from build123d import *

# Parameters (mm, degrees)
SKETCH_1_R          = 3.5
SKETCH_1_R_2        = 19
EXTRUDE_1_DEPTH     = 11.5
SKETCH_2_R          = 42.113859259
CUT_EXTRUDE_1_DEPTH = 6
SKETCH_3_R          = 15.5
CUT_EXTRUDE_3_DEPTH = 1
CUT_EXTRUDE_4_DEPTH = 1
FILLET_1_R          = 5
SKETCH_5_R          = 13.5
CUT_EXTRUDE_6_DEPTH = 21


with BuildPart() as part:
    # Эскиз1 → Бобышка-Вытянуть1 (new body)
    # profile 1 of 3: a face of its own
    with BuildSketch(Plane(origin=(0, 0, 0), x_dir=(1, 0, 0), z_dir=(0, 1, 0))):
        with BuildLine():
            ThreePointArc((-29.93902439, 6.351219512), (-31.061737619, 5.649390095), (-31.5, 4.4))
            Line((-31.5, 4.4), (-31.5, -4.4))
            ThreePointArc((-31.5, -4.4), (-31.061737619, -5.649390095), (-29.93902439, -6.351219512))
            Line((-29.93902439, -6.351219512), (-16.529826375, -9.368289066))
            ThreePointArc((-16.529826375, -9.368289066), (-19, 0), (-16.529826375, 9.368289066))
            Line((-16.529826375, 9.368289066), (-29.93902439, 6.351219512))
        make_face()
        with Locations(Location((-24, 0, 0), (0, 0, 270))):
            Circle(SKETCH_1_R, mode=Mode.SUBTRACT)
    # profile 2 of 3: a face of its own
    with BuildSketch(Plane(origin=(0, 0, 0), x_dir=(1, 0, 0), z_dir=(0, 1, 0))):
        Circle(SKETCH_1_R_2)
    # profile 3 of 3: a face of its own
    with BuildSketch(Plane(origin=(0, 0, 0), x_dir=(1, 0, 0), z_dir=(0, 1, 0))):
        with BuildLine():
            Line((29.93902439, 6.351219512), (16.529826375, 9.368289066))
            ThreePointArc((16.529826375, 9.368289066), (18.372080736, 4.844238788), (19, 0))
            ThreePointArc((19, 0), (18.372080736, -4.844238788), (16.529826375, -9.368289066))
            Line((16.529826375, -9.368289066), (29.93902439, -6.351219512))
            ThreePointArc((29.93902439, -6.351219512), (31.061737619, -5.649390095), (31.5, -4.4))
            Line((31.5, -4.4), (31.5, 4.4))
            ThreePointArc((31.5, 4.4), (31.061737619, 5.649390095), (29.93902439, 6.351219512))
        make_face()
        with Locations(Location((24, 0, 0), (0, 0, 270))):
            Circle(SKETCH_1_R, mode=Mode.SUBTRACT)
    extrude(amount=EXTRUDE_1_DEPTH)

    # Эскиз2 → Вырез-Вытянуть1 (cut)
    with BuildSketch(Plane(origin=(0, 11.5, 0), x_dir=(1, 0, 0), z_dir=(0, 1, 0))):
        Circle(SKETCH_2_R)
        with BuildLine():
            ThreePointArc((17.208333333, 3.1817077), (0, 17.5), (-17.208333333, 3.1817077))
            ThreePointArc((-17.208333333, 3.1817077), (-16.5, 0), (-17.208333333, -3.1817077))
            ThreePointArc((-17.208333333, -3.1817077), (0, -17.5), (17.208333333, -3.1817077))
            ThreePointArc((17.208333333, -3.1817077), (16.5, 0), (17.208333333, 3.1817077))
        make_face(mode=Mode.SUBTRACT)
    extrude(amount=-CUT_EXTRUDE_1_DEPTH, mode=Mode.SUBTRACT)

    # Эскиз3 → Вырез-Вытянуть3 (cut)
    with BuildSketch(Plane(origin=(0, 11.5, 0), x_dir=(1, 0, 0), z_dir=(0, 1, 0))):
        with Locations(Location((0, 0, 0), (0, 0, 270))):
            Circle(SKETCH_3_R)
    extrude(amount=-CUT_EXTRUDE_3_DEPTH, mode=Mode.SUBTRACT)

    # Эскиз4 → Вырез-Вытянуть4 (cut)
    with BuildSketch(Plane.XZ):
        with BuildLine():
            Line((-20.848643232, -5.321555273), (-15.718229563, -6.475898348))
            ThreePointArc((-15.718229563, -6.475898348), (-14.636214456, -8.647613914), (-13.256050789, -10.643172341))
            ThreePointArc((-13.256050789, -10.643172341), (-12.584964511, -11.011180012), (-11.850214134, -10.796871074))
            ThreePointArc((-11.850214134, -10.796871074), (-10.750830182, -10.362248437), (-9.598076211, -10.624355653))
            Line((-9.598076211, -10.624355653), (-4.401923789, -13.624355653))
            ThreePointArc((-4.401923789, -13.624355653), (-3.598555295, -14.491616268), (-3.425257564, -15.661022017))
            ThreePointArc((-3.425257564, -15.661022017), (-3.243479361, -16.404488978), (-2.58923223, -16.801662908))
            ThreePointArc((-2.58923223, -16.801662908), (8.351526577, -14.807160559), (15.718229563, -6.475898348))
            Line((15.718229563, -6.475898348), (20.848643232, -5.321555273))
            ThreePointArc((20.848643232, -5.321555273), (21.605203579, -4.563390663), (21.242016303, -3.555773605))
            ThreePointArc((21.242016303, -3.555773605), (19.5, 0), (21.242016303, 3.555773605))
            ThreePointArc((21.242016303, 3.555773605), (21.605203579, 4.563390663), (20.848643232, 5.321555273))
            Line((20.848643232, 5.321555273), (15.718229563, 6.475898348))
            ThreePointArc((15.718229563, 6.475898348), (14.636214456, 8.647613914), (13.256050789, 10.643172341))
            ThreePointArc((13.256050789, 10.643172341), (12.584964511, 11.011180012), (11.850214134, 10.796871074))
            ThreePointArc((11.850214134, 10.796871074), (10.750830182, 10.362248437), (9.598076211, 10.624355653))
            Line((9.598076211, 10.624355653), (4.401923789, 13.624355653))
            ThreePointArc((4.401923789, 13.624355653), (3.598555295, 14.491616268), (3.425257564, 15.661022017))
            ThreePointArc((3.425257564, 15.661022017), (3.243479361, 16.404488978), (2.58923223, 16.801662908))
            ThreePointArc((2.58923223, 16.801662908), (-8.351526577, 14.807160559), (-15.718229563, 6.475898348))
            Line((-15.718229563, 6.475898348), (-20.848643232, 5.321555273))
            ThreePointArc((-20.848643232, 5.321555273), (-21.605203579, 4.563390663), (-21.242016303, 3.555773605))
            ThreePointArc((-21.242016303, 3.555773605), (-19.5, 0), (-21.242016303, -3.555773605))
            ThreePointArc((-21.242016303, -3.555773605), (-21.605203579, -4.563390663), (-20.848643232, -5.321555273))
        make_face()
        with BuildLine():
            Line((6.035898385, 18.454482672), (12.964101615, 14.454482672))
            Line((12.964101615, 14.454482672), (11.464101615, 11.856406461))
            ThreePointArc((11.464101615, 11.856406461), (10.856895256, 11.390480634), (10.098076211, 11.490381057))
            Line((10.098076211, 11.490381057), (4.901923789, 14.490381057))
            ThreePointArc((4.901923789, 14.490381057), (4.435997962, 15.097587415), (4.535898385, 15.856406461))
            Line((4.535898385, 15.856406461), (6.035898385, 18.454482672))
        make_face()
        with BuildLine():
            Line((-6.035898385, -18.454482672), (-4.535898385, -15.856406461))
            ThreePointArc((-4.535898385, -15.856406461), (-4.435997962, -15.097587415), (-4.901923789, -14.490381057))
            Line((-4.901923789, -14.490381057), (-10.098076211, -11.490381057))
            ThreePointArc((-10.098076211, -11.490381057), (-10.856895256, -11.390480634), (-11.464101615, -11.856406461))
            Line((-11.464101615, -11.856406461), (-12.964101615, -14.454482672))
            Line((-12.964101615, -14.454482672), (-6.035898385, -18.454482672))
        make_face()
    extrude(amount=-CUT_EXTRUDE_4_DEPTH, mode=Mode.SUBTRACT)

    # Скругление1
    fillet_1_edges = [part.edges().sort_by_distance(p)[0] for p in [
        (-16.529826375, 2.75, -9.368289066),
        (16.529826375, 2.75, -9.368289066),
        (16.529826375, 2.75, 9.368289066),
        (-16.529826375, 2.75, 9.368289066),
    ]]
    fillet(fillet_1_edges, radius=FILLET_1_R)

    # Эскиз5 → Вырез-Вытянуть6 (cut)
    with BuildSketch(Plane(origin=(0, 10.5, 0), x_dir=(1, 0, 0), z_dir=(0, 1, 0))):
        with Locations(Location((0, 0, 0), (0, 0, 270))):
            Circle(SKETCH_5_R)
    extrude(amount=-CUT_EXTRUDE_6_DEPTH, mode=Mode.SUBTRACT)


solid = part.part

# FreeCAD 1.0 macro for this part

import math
import FreeCAD as App
import Part
import Sketcher
Q = App.Units.Quantity


def edges_at(feature, points):
    """Names of the edges that pass closest to the given points."""
    edges = feature.Shape.Edges
    near = lambda p: min(range(len(edges)), key=lambda i: edges[i].distToShape(Part.Vertex(*p))[0])
    return sorted({f"Edge{near(p) + 1}" for p in points})

doc = App.newDocument("Part")
params = doc.addObject("Spreadsheet::Sheet", "Params")
for row, (alias, value) in enumerate([
    ("sketch1_diameter", "7 mm"),
    ("sketch1_radius", "2 mm"),
    ("sketch1_radius2", "19 mm"),
    ("sketch1_height", "8.8 mm"),
    ("pad1_length", "11.5 mm"),
    ("sketch2_radius", "17.5 mm"),
    ("sketch2_radius2", "7.5 mm"),
    ("pocket1_length", "6 mm"),
    ("sketch3_diameter", "31 mm"),
    ("pocket2_length", "1 mm"),
    ("sketch4_radius", "17 mm"),
    ("sketch4_radius2", "1 mm"),
    ("sketch4_radius3", "2 mm"),
    ("sketch4_radius4", "4.5 mm"),
    ("sketch4_length", "6 mm"),
    ("pocket3_length", "1 mm"),
    ("fillet_radius", "5 mm"),
    ("sketch5_diameter", "27 mm"),
    ("pocket4_length", "21 mm"),
], start=1):
    params.set(f"A{row}", alias)
    params.set(f"B{row}", "=" + value)
    params.setAlias(f"B{row}", alias)

body = doc.addObject("PartDesign::Body", "Body")

# Sketch on XZ plane
sketch1 = body.newObject("Sketcher::SketchObject", "Sketch")
sketch1.AttachmentSupport = (doc.getObject("XZ_Plane"), [""])
sketch1.MapMode = "FlatFace"
sketch1.addGeometry([
    Part.ArcOfCircle(Part.Circle(App.Vector(-29.5, -4.4, 0), App.Vector(0, 0, 1), 2), math.radians(180), math.radians(257.319617)),  # 0
    Part.LineSegment(App.Vector(-31.5, -4.4, 0), App.Vector(-31.5, 4.4, 0)),  # 1
    Part.ArcOfCircle(Part.Circle(App.Vector(-29.5, 4.4, 0), App.Vector(0, 0, 1), 2), math.radians(102.680383), math.radians(180)),  # 2
    Part.LineSegment(App.Vector(-29.939024, 6.35122, 0), App.Vector(-16.529826, 9.368289, 0)),  # 3
    Part.ArcOfCircle(Part.Circle(App.Vector(0, 0, 0), App.Vector(0, 0, 1), 19), math.radians(29.542422), math.radians(150.457578)),  # 4
    Part.LineSegment(App.Vector(16.529826, 9.368289, 0), App.Vector(29.939024, 6.35122, 0)),  # 5
    Part.ArcOfCircle(Part.Circle(App.Vector(29.5, 4.4, 0), App.Vector(0, 0, 1), 2), math.radians(0), math.radians(77.319617)),  # 6
    Part.LineSegment(App.Vector(31.5, 4.4, 0), App.Vector(31.5, -4.4, 0)),  # 7
    Part.ArcOfCircle(Part.Circle(App.Vector(29.5, -4.4, 0), App.Vector(0, 0, 1), 2), math.radians(-77.319617), math.radians(0)),  # 8
    Part.LineSegment(App.Vector(29.939024, -6.35122, 0), App.Vector(16.529826, -9.368289, 0)),  # 9
    Part.ArcOfCircle(Part.Circle(App.Vector(0, 0, 0), App.Vector(0, 0, 1), 19), math.radians(-150.457578), math.radians(-29.542422)),  # 10
    Part.LineSegment(App.Vector(-16.529826, -9.368289, 0), App.Vector(-29.939024, -6.35122, 0)),  # 11
    Part.Circle(App.Vector(-24, 0, 0), App.Vector(0, 0, 1), 3.5),  # 12
    Part.Circle(App.Vector(24, 0, 0), App.Vector(0, 0, 1), 3.5),  # 13
], False)
sketch1.addConstraint([
    Sketcher.Constraint("Tangent", 0, 1, 1, 1),
    Sketcher.Constraint("Tangent", 1, 2, 2, 2),
    Sketcher.Constraint("Tangent", 2, 1, 3, 1),
    Sketcher.Constraint("Coincident", 3, 2, 4, 2),
    Sketcher.Constraint("Coincident", 4, 1, 5, 1),
    Sketcher.Constraint("Tangent", 5, 2, 6, 2),
    Sketcher.Constraint("Tangent", 6, 1, 7, 1),
    Sketcher.Constraint("Tangent", 7, 2, 8, 2),
    Sketcher.Constraint("Tangent", 8, 1, 9, 1),
    Sketcher.Constraint("Coincident", 9, 2, 10, 2),
    Sketcher.Constraint("Coincident", 10, 1, 11, 1),
    Sketcher.Constraint("Tangent", 11, 2, 0, 2),
    Sketcher.Constraint("Vertical", 1),
    Sketcher.Constraint("Vertical", 7),
    Sketcher.Constraint("Coincident", 4, 3, -1, 1),
    Sketcher.Constraint("Coincident", 10, 3, -1, 1),
    Sketcher.Constraint("Equal", 0, 2),
    Sketcher.Constraint("Equal", 2, 6),
    Sketcher.Constraint("Equal", 6, 8),
    Sketcher.Constraint("Equal", 4, 10),
    Sketcher.Constraint("Equal", 12, 13),
    Sketcher.Constraint("Symmetric", 0, 3, 6, 3, -1, 1),
    Sketcher.Constraint("Symmetric", 12, 3, 13, 3, -1, 1),
    Sketcher.Constraint("Symmetric", 2, 1, 8, 1, -1, 1),
    Sketcher.Constraint("Symmetric", 2, 1, 5, 2, -2),
    Sketcher.Constraint("PointOnObject", 12, 3, -1),
    Sketcher.Constraint("Parallel", 5, 11),
    Sketcher.Constraint("Diameter", 12, Q("7 mm")),
    Sketcher.Constraint("Radius", 0, Q("2 mm")),
    Sketcher.Constraint("Radius", 4, Q("19 mm")),
    Sketcher.Constraint("DistanceY", 1, 1, 1, 2, Q("8.8 mm")),
    Sketcher.Constraint("DistanceX", 12, 3, -1, 1, Q("24 mm")),
    Sketcher.Constraint("DistanceX", 2, 3, 6, 3, Q("59 mm")),
    Sketcher.Constraint("DistanceX", 2, 1, 3, 2, Q("13.409198 mm")),
])
sketch1.setExpression("Constraints[27]", "Params.sketch1_diameter")
sketch1.setExpression("Constraints[28]", "Params.sketch1_radius")
sketch1.setExpression("Constraints[29]", "Params.sketch1_radius2")
sketch1.setExpression("Constraints[30]", "Params.sketch1_height")
pad1 = body.newObject("PartDesign::Pad", "Pad")
pad1.Profile = sketch1
pad1.setExpression("Length", "Params.pad1_length")
pad1.Reversed = True

# Sketch on XZ plane
sketch2 = body.newObject("Sketcher::SketchObject", "Sketch001")
sketch2.AttachmentSupport = (doc.getObject("XZ_Plane"), [""])
sketch2.MapMode = "FlatFace"
sketch2.AttachmentOffset = App.Placement(App.Vector(0, 0, -11.5), App.Rotation())
sketch2.addGeometry([
    Part.Circle(App.Vector(0, 0, 0), App.Vector(0, 0, 1), 42.113859),  # 0
    Part.ArcOfCircle(Part.Circle(App.Vector(0, 0, 0), App.Vector(0, 0, 1), 17.5), math.radians(-169.524686), math.radians(-10.475314)),  # 1
    Part.ArcOfCircle(Part.Circle(App.Vector(24, 0, 0), App.Vector(0, 0, 1), 7.5), math.radians(154.898211), math.radians(205.101789)),  # 2
    Part.ArcOfCircle(Part.Circle(App.Vector(0, 0, 0), App.Vector(0, 0, 1), 17.5), math.radians(10.475314), math.radians(169.524686)),  # 3
    Part.ArcOfCircle(Part.Circle(App.Vector(-24, 0, 0), App.Vector(0, 0, 1), 7.5), math.radians(-25.101789), math.radians(25.101789)),  # 4
], False)
sketch2.addConstraint([
    Sketcher.Constraint("Coincident", 1, 2, 2, 2),
    Sketcher.Constraint("Coincident", 2, 1, 3, 1),
    Sketcher.Constraint("Coincident", 3, 2, 4, 2),
    Sketcher.Constraint("Coincident", 4, 1, 1, 1),
    Sketcher.Constraint("Coincident", 0, 3, -1, 1),
    Sketcher.Constraint("Coincident", 1, 3, -1, 1),
    Sketcher.Constraint("Coincident", 3, 3, -1, 1),
    Sketcher.Constraint("Equal", 1, 3),
    Sketcher.Constraint("Equal", 2, 4),
    Sketcher.Constraint("Symmetric", 2, 3, 4, 3, -1, 1),
    Sketcher.Constraint("PointOnObject", 2, 3, -1),
    Sketcher.Constraint("Radius", 1, Q("17.5 mm")),
    Sketcher.Constraint("Radius", 2, Q("7.5 mm")),
    Sketcher.Constraint("DistanceX", -1, 1, 2, 3, Q("24 mm")),
    Sketcher.Constraint("Diameter", 0, Q("84.227719 mm")),
])
sketch2.setExpression("Constraints[11]", "Params.sketch2_radius")
sketch2.setExpression("Constraints[12]", "Params.sketch2_radius2")
pocket1 = body.newObject("PartDesign::Pocket", "Pocket")
pocket1.Profile = sketch2
pocket1.setExpression("Length", "Params.pocket1_length")
pocket1.Reversed = True

# Sketch on XZ plane
sketch3 = body.newObject("Sketcher::SketchObject", "Sketch002")
sketch3.AttachmentSupport = (doc.getObject("XZ_Plane"), [""])
sketch3.MapMode = "FlatFace"
sketch3.AttachmentOffset = App.Placement(App.Vector(0, 0, -11.5), App.Rotation())
sketch3.addGeometry(Part.Circle(App.Vector(0, 0, 0), App.Vector(0, 0, 1), 15.5), False)
sketch3.addConstraint([
    Sketcher.Constraint("Coincident", 0, 3, -1, 1),
    Sketcher.Constraint("Diameter", 0, Q("31 mm")),
])
sketch3.setExpression("Constraints[1]", "Params.sketch3_diameter")
pocket2 = body.newObject("PartDesign::Pocket", "Pocket001")
pocket2.Profile = sketch3
pocket2.setExpression("Length", "Params.pocket2_length")
pocket2.Reversed = True

# Sketch on XZ plane
sketch4 = body.newObject("Sketcher::SketchObject", "Sketch003")
sketch4.AttachmentSupport = (doc.getObject("XZ_Plane"), [""])
sketch4.MapMode = "FlatFace"
sketch4.addGeometry([
    Part.LineSegment(App.Vector(-20.848643, -5.321555, 0), App.Vector(-15.71823, -6.475898, 0)),  # 0
    Part.ArcOfCircle(Part.Circle(App.Vector(0, 0, 0), App.Vector(0, 0, 1), 17), math.radians(-157.608377), math.radians(-141.239311)),  # 1
    Part.ArcOfCircle(Part.Circle(App.Vector(-12.476283, -10.017103, 0), App.Vector(0, 0, 1), 1), math.radians(-141.239311), math.radians(-51.239311)),  # 2
    Part.ArcOfCircle(Part.Circle(App.Vector(-10.598076, -12.356406, 0), App.Vector(0, 0, 1), 2), math.radians(60), math.radians(128.760689)),  # 3
    Part.LineSegment(App.Vector(-9.598076, -10.624356, 0), App.Vector(-4.401924, -13.624356, 0)),  # 4
    Part.ArcOfCircle(Part.Circle(App.Vector(-5.401924, -15.356406, 0), App.Vector(0, 0, 1), 2), math.radians(-8.760689), math.radians(60)),  # 5
    Part.ArcOfCircle(Part.Circle(App.Vector(-2.436924, -15.81333, 0), App.Vector(0, 0, 1), 1), math.radians(171.239311), math.radians(261.239311)),  # 6
    Part.ArcOfCircle(Part.Circle(App.Vector(0, 0, 0), App.Vector(0, 0, 1), 17), math.radians(-98.760689), math.radians(-22.391623)),  # 7
    Part.LineSegment(App.Vector(15.71823, -6.475898, 0), App.Vector(20.848643, -5.321555, 0)),  # 8
    Part.ArcOfCircle(Part.Circle(App.Vector(20.629131, -4.345946, 0), App.Vector(0, 0, 1), 1), math.radians(-77.319616), math.radians(52.20158)),  # 9
    Part.ArcOfCircle(Part.Circle(App.Vector(24, 0, 0), App.Vector(0, 0, 1), 4.5), math.radians(127.79842), math.radians(232.20158)),  # 10
    Part.ArcOfCircle(Part.Circle(App.Vector(20.629131, 4.345946, 0), App.Vector(0, 0, 1), 1), math.radians(-52.20158), math.radians(77.319616)),  # 11
    Part.LineSegment(App.Vector(20.848643, 5.321555, 0), App.Vector(15.71823, 6.475898, 0)),  # 12
    Part.ArcOfCircle(Part.Circle(App.Vector(0, 0, 0), App.Vector(0, 0, 1), 17), math.radians(22.391623), math.radians(38.760689)),  # 13
    Part.ArcOfCircle(Part.Circle(App.Vector(12.476283, 10.017103, 0), App.Vector(0, 0, 1), 1), math.radians(38.760689), math.radians(128.760689)),  # 14
    Part.ArcOfCircle(Part.Circle(App.Vector(10.598076, 12.356406, 0), App.Vector(0, 0, 1), 2), math.radians(-120), math.radians(-51.239311)),  # 15
    Part.LineSegment(App.Vector(9.598076, 10.624356, 0), App.Vector(4.401924, 13.624356, 0)),  # 16
    Part.ArcOfCircle(Part.Circle(App.Vector(5.401924, 15.356406, 0), App.Vector(0, 0, 1), 2), math.radians(171.239311), math.radians(240)),  # 17
    Part.ArcOfCircle(Part.Circle(App.Vector(2.436924, 15.81333, 0), App.Vector(0, 0, 1), 1), math.radians(-8.760689), math.radians(81.239311)),  # 18
    Part.ArcOfCircle(Part.Circle(App.Vector(0, 0, 0), App.Vector(0, 0, 1), 17), math.radians(81.239311), math.radians(157.608377)),  # 19
    Part.LineSegment(App.Vector(-15.71823, 6.475898, 0), App.Vector(-20.848643, 5.321555, 0)),  # 20
    Part.ArcOfCircle(Part.Circle(App.Vector(-20.629131, 4.345946, 0), App.Vector(0, 0, 1), 1), math.radians(102.680384), math.radians(232.20158)),  # 21
    Part.ArcOfCircle(Part.Circle(App.Vector(-24, 0, 0), App.Vector(0, 0, 1), 4.5), math.radians(-52.20158), math.radians(52.20158)),  # 22
    Part.ArcOfCircle(Part.Circle(App.Vector(-20.629131, -4.345946, 0), App.Vector(0, 0, 1), 1), math.radians(127.79842), math.radians(257.319616)),  # 23
    Part.LineSegment(App.Vector(12.964102, 14.454483, 0), App.Vector(6.035898, 18.454483, 0)),  # 24
    Part.LineSegment(App.Vector(6.035898, 18.454483, 0), App.Vector(4.535898, 15.856406, 0)),  # 25
    Part.ArcOfCircle(Part.Circle(App.Vector(5.401924, 15.356406, 0), App.Vector(0, 0, 1), 1), math.radians(150), math.radians(240)),  # 26
    Part.LineSegment(App.Vector(4.901924, 14.490381, 0), App.Vector(10.098076, 11.490381, 0)),  # 27
    Part.ArcOfCircle(Part.Circle(App.Vector(10.598076, 12.356406, 0), App.Vector(0, 0, 1), 1), math.radians(-120), math.radians(-30)),  # 28
    Part.LineSegment(App.Vector(11.464102, 11.856406, 0), App.Vector(12.964102, 14.454483, 0)),  # 29
    Part.LineSegment(App.Vector(-6.035898, -18.454483, 0), App.Vector(-4.535898, -15.856406, 0)),  # 30
    Part.ArcOfCircle(Part.Circle(App.Vector(-5.401924, -15.356406, 0), App.Vector(0, 0, 1), 1), math.radians(-30), math.radians(60)),  # 31
    Part.LineSegment(App.Vector(-4.901924, -14.490381, 0), App.Vector(-10.098076, -11.490381, 0)),  # 32
    Part.ArcOfCircle(Part.Circle(App.Vector(-10.598076, -12.356406, 0), App.Vector(0, 0, 1), 1), math.radians(60), math.radians(150)),  # 33
    Part.LineSegment(App.Vector(-11.464102, -11.856406, 0), App.Vector(-12.964102, -14.454483, 0)),  # 34
    Part.LineSegment(App.Vector(-12.964102, -14.454483, 0), App.Vector(-6.035898, -18.454483, 0)),  # 35
], False)
sketch4.addConstraint([
    Sketcher.Constraint("Coincident", 0, 2, 1, 1),
    Sketcher.Constraint("Tangent", 1, 2, 2, 1),
    Sketcher.Constraint("Tangent", 2, 2, 3, 2),
    Sketcher.Constraint("Tangent", 3, 1, 4, 1),
    Sketcher.Constraint("Tangent", 4, 2, 5, 2),
    Sketcher.Constraint("Tangent", 5, 1, 6, 1),
    Sketcher.Constraint("Tangent", 6, 2, 7, 1),
    Sketcher.Constraint("Coincident", 7, 2, 8, 1),
    Sketcher.Constraint("Tangent", 8, 2, 9, 1),
    Sketcher.Constraint("Tangent", 9, 2, 10, 2),
    Sketcher.Constraint("Tangent", 10, 1, 11, 1),
    Sketcher.Constraint("Tangent", 11, 2, 12, 1),
    Sketcher.Constraint("Coincident", 12, 2, 13, 1),
    Sketcher.Constraint("Tangent", 13, 2, 14, 1),
    Sketcher.Constraint("Tangent", 14, 2, 15, 2),
    Sketcher.Constraint("Tangent", 15, 1, 16, 1),
    Sketcher.Constraint("Tangent", 16, 2, 17, 2),
    Sketcher.Constraint("Tangent", 17, 1, 18, 1),
    Sketcher.Constraint("Tangent", 18, 2, 19, 1),
    Sketcher.Constraint("Coincident", 19, 2, 20, 1),
    Sketcher.Constraint("Tangent", 20, 2, 21, 1),
    Sketcher.Constraint("Tangent", 21, 2, 22, 2),
    Sketcher.Constraint("Tangent", 22, 1, 23, 1),
    Sketcher.Constraint("Tangent", 23, 2, 0, 1),
    Sketcher.Constraint("Coincident", 24, 2, 25, 1),
    Sketcher.Constraint("Tangent", 25, 2, 26, 1),
    Sketcher.Constraint("Tangent", 26, 2, 27, 1),
    Sketcher.Constraint("Tangent", 27, 2, 28, 1),
    Sketcher.Constraint("Tangent", 28, 2, 29, 1),
    Sketcher.Constraint("Coincident", 29, 2, 24, 1),
    Sketcher.Constraint("Tangent", 30, 2, 31, 1),
    Sketcher.Constraint("Tangent", 31, 2, 32, 1),
    Sketcher.Constraint("Tangent", 32, 2, 33, 1),
    Sketcher.Constraint("Tangent", 33, 2, 34, 1),
    Sketcher.Constraint("Coincident", 34, 2, 35, 1),
    Sketcher.Constraint("Coincident", 35, 2, 30, 1),
    Sketcher.Constraint("Coincident", 1, 3, -1, 1),
    Sketcher.Constraint("Coincident", 7, 3, -1, 1),
    Sketcher.Constraint("Coincident", 13, 3, -1, 1),
    Sketcher.Constraint("Coincident", 19, 3, -1, 1),
    Sketcher.Constraint("Coincident", 26, 3, 17, 3),
    Sketcher.Constraint("Coincident", 28, 3, 15, 3),
    Sketcher.Constraint("Coincident", 31, 3, 5, 3),
    Sketcher.Constraint("Coincident", 33, 3, 3, 3),
    Sketcher.Constraint("Equal", 3, 5),
    Sketcher.Constraint("Equal", 2, 6),
    Sketcher.Constraint("Equal", 1, 7),
    Sketcher.Constraint("Equal", 6, 9),
    Sketcher.Constraint("Equal", 9, 11),
    Sketcher.Constraint("Equal", 7, 13),
    Sketcher.Constraint("Equal", 11, 14),
    Sketcher.Constraint("Equal", 5, 15),
    Sketcher.Constraint("Equal", 15, 17),
    Sketcher.Constraint("Equal", 14, 18),
    Sketcher.Constraint("Equal", 13, 19),
    Sketcher.Constraint("Equal", 18, 21),
    Sketcher.Constraint("Equal", 10, 22),
    Sketcher.Constraint("Equal", 21, 23),
    Sketcher.Constraint("Equal", 23, 26),
    Sketcher.Constraint("Equal", 26, 28),
    Sketcher.Constraint("Equal", 28, 31),
    Sketcher.Constraint("Equal", 31, 33),
    Sketcher.Constraint("Symmetric", 3, 3, 15, 3, -1, 1),
    Sketcher.Constraint("Symmetric", 5, 3, 17, 3, -1, 1),
    Sketcher.Constraint("Symmetric", 9, 3, 21, 3, -1, 1),
    Sketcher.Constraint("Symmetric", 11, 3, 23, 3, -1, 1),
    Sketcher.Constraint("Symmetric", 29, 2, 34, 2, -1, 1),
    Sketcher.Constraint("Symmetric", 24, 2, 35, 2, -1, 1),
    Sketcher.Constraint("Symmetric", 11, 3, 21, 3, -2),
    Sketcher.Constraint("Parallel", 0, 12),
    Sketcher.Constraint("Parallel", 8, 20),
    Sketcher.Constraint("Parallel", 16, 24),
    Sketcher.Constraint("Perpendicular", 24, 25),
    Sketcher.Constraint("Perpendicular", 27, 29),
    Sketcher.Constraint("Horizontal", 0, 2, 7, 2),
    Sketcher.Constraint("Radius", 1, Q("17 mm")),
    Sketcher.Constraint("Radius", 2, Q("1 mm")),
    Sketcher.Constraint("Radius", 3, Q("2 mm")),
    Sketcher.Constraint("Radius", 10, Q("4.5 mm")),
    Sketcher.Constraint("Angle", 4, Q("-30 deg")),
    Sketcher.Constraint("Distance", 4, Q("6 mm")),
    Sketcher.Constraint("Distance", 25, Q("3 mm")),
    Sketcher.Constraint("DistanceX", -1, 1, 10, 3, Q("24 mm")),
    Sketcher.Constraint("DistanceX", 5, 3, 6, 3, Q("2.964999 mm")),
    Sketcher.Constraint("DistanceY", 7, 2, 14, 3, Q("16.493002 mm")),
    Sketcher.Constraint("DistanceY", 0, 2, -1, 1, Q("6.475898 mm")),
    Sketcher.Constraint("DistanceX", 23, 3, 0, 2, Q("4.910901 mm")),
])
sketch4.setExpression("Constraints[75]", "Params.sketch4_radius")
sketch4.setExpression("Constraints[76]", "Params.sketch4_radius2")
sketch4.setExpression("Constraints[77]", "Params.sketch4_radius3")
sketch4.setExpression("Constraints[78]", "Params.sketch4_radius4")
sketch4.setExpression("Constraints[80]", "Params.sketch4_length")
pocket3 = body.newObject("PartDesign::Pocket", "Pocket002")
pocket3.Profile = sketch4
pocket3.setExpression("Length", "Params.pocket3_length")
doc.recompute()

fillet = body.newObject("PartDesign::Fillet", "Fillet")
fillet.Base = (pocket3, edges_at(pocket3, [
    (-16.53, 2.75, -9.368),
    (16.53, 2.75, -9.368),
    (16.53, 2.75, 9.368),
    (-16.53, 2.75, 9.368),
]))
fillet.setExpression("Radius", "Params.fillet_radius")

# Sketch on XZ plane
sketch5 = body.newObject("Sketcher::SketchObject", "Sketch004")
sketch5.AttachmentSupport = (doc.getObject("XZ_Plane"), [""])
sketch5.MapMode = "FlatFace"
sketch5.AttachmentOffset = App.Placement(App.Vector(0, 0, -10.5), App.Rotation())
sketch5.addGeometry(Part.Circle(App.Vector(0, 0, 0), App.Vector(0, 0, 1), 13.5), False)
sketch5.addConstraint([
    Sketcher.Constraint("Coincident", 0, 3, -1, 1),
    Sketcher.Constraint("Diameter", 0, Q("27 mm")),
])
sketch5.setExpression("Constraints[1]", "Params.sketch5_diameter")
pocket4 = body.newObject("PartDesign::Pocket", "Pocket003")
pocket4.Profile = sketch5
pocket4.setExpression("Length", "Params.pocket4_length")
pocket4.Reversed = True

doc.recompute()
